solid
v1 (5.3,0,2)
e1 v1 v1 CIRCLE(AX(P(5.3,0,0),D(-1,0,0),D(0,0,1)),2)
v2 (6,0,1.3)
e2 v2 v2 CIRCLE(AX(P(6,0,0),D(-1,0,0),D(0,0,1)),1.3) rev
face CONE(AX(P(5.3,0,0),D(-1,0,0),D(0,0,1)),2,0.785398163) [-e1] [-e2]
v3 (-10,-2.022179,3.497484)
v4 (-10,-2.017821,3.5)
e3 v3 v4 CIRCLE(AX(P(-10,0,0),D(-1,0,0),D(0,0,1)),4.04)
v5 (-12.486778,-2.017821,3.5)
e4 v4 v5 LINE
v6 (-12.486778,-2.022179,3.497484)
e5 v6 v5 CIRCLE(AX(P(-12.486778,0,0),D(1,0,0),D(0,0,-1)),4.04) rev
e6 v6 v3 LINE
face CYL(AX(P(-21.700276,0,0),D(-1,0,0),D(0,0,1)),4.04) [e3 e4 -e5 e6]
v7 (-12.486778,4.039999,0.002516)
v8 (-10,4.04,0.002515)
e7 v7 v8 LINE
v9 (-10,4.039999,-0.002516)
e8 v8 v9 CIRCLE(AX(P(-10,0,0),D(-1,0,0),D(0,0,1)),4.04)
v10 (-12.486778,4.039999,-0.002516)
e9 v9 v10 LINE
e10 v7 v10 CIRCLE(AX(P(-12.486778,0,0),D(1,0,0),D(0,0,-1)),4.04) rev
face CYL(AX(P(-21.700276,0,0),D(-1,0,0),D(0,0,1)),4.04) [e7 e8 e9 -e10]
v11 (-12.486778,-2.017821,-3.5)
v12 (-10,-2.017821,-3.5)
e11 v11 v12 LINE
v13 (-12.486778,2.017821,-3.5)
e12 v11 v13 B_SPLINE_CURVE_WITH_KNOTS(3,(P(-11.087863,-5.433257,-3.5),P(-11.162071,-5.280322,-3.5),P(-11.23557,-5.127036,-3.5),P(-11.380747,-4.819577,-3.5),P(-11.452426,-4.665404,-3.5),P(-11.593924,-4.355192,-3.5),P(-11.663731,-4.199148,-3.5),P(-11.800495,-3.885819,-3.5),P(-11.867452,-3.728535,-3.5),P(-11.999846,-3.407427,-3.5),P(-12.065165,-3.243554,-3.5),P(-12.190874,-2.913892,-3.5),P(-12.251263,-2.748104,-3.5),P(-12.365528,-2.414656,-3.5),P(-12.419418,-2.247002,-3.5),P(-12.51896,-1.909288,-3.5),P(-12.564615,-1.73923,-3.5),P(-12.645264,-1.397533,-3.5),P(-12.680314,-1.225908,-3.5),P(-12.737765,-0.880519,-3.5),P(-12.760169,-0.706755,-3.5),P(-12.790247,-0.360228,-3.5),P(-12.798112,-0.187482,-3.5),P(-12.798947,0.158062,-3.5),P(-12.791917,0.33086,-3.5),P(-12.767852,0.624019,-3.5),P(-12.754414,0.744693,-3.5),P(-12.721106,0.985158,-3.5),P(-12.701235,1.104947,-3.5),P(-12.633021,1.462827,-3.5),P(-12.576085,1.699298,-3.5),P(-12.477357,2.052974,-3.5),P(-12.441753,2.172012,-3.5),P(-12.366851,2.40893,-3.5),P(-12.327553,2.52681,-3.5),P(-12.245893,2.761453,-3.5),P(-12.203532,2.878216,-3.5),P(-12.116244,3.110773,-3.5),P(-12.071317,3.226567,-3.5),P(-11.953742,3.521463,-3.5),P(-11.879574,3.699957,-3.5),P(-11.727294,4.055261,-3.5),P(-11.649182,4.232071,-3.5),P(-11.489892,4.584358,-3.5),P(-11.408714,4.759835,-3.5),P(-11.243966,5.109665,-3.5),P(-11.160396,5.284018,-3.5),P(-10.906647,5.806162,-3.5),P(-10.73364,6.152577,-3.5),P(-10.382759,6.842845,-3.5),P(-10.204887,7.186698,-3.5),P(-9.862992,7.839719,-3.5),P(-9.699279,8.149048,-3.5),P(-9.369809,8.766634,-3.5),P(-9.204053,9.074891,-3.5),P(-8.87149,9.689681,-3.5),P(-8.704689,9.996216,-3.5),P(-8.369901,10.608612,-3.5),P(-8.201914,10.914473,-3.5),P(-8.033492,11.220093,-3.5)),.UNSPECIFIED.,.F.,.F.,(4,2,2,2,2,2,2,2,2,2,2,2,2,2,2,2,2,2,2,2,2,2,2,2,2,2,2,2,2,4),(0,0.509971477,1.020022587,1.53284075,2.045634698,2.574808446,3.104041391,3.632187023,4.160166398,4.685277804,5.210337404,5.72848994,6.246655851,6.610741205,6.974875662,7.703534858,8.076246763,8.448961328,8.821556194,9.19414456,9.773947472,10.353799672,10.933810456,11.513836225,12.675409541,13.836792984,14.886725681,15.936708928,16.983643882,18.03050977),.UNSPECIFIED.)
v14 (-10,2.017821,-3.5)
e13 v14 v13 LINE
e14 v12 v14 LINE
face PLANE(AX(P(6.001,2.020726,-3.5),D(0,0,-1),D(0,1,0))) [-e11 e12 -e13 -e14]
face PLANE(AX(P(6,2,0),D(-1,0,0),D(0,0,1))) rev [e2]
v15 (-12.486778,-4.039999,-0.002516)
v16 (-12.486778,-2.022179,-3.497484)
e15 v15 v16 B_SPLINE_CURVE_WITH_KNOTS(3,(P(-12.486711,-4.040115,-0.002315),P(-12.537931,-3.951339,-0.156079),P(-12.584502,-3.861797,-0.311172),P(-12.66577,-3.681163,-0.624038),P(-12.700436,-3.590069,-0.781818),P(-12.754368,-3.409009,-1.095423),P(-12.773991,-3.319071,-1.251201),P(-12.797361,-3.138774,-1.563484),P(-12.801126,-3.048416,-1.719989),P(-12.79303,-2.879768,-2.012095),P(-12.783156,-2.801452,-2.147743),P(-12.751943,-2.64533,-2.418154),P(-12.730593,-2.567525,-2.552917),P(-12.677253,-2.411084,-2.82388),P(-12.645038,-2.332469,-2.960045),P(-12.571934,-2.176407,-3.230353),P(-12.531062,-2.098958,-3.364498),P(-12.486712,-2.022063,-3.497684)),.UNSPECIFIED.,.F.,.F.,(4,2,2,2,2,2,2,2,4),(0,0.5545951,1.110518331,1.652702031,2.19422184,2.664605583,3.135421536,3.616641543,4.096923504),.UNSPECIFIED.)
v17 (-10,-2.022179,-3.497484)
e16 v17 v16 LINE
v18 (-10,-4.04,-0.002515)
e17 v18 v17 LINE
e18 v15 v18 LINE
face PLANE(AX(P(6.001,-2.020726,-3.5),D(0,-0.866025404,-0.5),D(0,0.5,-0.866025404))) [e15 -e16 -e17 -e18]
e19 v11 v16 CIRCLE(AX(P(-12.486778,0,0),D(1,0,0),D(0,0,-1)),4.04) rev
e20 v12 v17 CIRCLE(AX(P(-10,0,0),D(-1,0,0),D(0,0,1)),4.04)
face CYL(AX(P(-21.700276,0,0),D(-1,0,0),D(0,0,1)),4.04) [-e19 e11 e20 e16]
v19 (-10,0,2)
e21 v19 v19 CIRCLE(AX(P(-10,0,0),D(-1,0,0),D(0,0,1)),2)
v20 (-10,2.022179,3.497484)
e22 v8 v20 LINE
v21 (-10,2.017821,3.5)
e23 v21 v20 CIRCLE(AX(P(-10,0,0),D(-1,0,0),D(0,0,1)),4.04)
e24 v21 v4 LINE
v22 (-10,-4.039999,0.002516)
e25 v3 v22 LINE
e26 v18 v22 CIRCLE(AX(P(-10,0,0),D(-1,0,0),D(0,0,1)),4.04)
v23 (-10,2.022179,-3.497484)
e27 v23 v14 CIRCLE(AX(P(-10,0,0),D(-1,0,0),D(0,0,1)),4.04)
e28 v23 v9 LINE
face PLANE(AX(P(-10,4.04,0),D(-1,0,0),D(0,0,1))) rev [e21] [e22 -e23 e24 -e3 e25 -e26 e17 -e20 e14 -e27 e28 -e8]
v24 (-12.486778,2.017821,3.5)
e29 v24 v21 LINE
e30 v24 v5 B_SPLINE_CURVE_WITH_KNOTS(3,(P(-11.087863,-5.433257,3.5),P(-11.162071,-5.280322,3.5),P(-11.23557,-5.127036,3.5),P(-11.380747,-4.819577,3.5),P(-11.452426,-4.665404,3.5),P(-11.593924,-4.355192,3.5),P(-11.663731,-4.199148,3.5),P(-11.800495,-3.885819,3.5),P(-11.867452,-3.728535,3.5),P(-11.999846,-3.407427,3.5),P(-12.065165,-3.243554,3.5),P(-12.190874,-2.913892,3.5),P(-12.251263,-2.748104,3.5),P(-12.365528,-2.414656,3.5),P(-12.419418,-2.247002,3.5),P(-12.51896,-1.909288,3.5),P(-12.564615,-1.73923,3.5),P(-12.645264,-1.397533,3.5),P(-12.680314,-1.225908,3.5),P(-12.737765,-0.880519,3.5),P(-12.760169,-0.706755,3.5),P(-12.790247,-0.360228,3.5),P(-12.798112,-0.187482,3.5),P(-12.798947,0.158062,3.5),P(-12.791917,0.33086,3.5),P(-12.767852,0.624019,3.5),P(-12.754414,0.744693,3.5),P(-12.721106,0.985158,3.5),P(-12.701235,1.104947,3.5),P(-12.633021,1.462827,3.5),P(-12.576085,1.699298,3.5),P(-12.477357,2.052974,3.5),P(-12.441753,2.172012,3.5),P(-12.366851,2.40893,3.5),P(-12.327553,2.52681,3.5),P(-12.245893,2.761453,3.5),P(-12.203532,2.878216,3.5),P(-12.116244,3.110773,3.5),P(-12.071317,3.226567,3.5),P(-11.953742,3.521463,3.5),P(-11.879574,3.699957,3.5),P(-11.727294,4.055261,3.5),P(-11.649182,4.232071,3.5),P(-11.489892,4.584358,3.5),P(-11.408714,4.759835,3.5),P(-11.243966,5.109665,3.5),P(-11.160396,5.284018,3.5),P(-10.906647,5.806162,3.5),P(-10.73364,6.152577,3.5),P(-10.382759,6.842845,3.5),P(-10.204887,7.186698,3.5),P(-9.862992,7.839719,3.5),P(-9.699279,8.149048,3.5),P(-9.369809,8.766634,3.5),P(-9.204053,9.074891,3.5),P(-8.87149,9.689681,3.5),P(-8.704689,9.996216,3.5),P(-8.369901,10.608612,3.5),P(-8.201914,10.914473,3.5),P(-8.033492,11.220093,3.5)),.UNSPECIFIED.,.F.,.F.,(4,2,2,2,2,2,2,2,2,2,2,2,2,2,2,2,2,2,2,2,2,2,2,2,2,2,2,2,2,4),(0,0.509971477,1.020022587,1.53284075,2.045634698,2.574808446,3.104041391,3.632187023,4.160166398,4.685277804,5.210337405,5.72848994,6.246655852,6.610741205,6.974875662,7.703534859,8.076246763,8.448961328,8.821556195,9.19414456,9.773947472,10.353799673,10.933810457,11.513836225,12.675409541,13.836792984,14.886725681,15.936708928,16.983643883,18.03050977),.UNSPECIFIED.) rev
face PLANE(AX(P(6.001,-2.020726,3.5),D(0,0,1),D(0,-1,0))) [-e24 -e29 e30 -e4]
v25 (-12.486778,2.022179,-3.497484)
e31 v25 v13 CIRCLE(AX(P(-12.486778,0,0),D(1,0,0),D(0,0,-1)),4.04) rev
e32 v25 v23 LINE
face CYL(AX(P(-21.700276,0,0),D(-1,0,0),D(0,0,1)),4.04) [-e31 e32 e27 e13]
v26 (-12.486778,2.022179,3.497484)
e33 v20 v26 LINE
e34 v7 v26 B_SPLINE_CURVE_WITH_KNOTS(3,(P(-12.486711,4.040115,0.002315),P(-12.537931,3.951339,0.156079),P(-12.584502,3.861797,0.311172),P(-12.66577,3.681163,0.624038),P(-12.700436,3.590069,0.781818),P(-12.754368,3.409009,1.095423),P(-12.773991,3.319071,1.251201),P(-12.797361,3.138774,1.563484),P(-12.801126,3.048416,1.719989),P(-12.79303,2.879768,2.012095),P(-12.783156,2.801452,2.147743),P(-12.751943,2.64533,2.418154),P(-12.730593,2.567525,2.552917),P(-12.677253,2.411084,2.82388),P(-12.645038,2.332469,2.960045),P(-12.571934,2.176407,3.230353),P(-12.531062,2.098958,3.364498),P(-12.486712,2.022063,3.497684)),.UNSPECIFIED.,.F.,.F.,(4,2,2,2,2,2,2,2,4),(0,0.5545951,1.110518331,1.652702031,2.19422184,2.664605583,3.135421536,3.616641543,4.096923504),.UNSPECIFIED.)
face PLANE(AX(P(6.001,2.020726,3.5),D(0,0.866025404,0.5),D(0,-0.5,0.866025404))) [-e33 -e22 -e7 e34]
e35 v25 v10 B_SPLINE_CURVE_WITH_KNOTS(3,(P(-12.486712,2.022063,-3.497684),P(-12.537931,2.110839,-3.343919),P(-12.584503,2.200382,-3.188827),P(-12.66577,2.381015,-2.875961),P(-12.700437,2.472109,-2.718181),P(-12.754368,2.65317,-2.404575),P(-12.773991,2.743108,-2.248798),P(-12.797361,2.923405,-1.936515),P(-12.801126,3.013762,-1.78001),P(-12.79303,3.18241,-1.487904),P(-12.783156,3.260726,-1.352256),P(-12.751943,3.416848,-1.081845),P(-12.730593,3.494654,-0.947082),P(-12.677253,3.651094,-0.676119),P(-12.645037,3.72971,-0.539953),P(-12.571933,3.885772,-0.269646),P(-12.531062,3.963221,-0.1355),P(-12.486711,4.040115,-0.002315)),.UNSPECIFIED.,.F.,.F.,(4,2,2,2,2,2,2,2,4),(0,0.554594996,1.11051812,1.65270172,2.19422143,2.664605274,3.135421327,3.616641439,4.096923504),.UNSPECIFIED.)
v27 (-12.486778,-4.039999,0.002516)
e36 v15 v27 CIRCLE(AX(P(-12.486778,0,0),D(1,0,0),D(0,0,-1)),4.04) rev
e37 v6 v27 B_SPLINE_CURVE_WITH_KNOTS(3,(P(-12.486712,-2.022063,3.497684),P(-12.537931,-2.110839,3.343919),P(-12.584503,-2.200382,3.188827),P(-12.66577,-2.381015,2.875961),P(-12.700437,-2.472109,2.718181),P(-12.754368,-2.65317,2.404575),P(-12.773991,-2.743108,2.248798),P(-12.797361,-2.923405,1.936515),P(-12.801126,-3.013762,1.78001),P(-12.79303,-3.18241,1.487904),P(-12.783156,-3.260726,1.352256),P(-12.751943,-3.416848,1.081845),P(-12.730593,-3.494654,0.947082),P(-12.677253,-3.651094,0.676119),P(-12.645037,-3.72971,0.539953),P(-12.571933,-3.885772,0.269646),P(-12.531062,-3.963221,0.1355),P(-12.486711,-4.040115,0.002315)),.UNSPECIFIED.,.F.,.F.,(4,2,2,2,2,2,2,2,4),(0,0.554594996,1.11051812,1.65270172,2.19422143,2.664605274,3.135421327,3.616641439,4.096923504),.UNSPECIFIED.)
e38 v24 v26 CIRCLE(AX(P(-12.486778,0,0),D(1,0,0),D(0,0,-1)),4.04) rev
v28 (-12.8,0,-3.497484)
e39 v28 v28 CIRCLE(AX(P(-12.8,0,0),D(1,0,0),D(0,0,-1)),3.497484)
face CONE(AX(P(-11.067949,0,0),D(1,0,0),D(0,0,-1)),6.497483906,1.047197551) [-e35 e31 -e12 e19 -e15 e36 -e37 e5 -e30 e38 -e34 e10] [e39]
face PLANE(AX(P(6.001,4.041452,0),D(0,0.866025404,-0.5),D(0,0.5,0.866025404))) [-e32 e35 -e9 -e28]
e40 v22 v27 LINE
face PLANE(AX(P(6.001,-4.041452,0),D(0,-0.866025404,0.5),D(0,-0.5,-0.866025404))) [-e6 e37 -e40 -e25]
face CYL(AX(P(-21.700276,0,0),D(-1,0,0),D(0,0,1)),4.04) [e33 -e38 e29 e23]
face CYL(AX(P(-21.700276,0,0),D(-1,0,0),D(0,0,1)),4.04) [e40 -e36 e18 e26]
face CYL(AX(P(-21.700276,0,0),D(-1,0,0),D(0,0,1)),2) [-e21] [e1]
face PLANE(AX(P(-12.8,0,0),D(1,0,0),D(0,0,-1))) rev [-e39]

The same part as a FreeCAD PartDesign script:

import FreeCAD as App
import Part
import Sketcher

V = App.Vector
Q = App.Units.Quantity


def edges_at(feature, points):
    """Names of the edges that pass closest to the given points."""
    edges = feature.Shape.Edges
    near = lambda p: min(range(len(edges)), key=lambda i: edges[i].distToShape(Part.Vertex(*p))[0])
    return sorted({f"Edge{near(p) + 1}" for p in points})

doc = App.newDocument("Part")
body = doc.addObject("PartDesign::Body", "Body")

# Sketch on XY plane
sketch1 = body.newObject("Sketcher::SketchObject", "Sketch")
sketch1.AttachmentSupport = (doc.getObject("XY_Plane"), [""])
sketch1.MapMode = "FlatFace"
sketch1.addGeometry([
    Part.LineSegment(V(-12.8, 4.04, 0), V(-12.8, 0, 0)),  # 0
    Part.LineSegment(V(-12.8, 0, 0), V(6, 0, 0)),  # 1
    Part.LineSegment(V(6, 0, 0), V(6, 2, 0)),  # 2
    Part.LineSegment(V(6, 2, 0), V(-10, 2, 0)),  # 3
    Part.LineSegment(V(-10, 2, 0), V(-10, 4.04, 0)),  # 4
    Part.LineSegment(V(-10, 4.04, 0), V(-12.8, 4.04, 0)),  # 5
], False)
sketch1.addConstraint([
    Sketcher.Constraint("Coincident", 0, 2, 1, 1),
    Sketcher.Constraint("Coincident", 1, 2, 2, 1),
    Sketcher.Constraint("Coincident", 2, 2, 3, 1),
    Sketcher.Constraint("Coincident", 3, 2, 4, 1),
    Sketcher.Constraint("Coincident", 4, 2, 5, 1),
    Sketcher.Constraint("Coincident", 5, 2, 0, 1),
    Sketcher.Constraint("Vertical", 0),
    Sketcher.Constraint("Horizontal", 1),
    Sketcher.Constraint("Vertical", 2),
    Sketcher.Constraint("Horizontal", 3),
    Sketcher.Constraint("Vertical", 4),
    Sketcher.Constraint("Horizontal", 5),
    Sketcher.Constraint("PointOnObject", 0, 2, -1),
    Sketcher.Constraint("DistanceX", 3, 2, 3, 1, Q("16 mm")),
    Sketcher.Constraint("DistanceY", 2, 1, 2, 2, Q("2 mm")),
    Sketcher.Constraint("DistanceX", 1, 1, 1, 2, Q("18.8 mm")),
    Sketcher.Constraint("DistanceX", -1, 1, 1, 2, Q("6 mm")),
    Sketcher.Constraint("DistanceY", 0, 2, 0, 1, Q("4.04 mm")),
])
revolution = body.newObject("PartDesign::Revolution", "Revolution")
revolution.Profile = sketch1
revolution.ReferenceAxis = (sketch1, ["H_Axis"])
revolution.Angle = 360

# Sketch on YZ plane
sketch2 = body.newObject("Sketcher::SketchObject", "Sketch001")
sketch2.AttachmentSupport = (doc.getObject("YZ_Plane"), [""])
sketch2.MapMode = "FlatFace"
sketch2.AttachmentOffset = App.Placement(V(0, 0, -12.8), App.Rotation())
sketch2.addGeometry([
    Part.LineSegment(V(7.24, -7.24, 0), V(-7.24, -7.24, 0)),  # 0
    Part.LineSegment(V(-7.24, -7.24, 0), V(-7.24, 7.24, 0)),  # 1
    Part.LineSegment(V(-7.24, 7.24, 0), V(7.24, 7.24, 0)),  # 2
    Part.LineSegment(V(7.24, 7.24, 0), V(7.24, -7.24, 0)),  # 3
    Part.LineSegment(V(2.020726, -3.5, 0), V(4.041452, 0, 0)),  # 4
    Part.LineSegment(V(4.041452, 0, 0), V(2.020726, 3.5, 0)),  # 5
    Part.LineSegment(V(2.020726, 3.5, 0), V(-2.020726, 3.5, 0)),  # 6
    Part.LineSegment(V(-2.020726, 3.5, 0), V(-4.041452, 0, 0)),  # 7
    Part.LineSegment(V(-4.041452, 0, 0), V(-2.020726, -3.5, 0)),  # 8
    Part.LineSegment(V(-2.020726, -3.5, 0), V(2.020726, -3.5, 0)),  # 9
], False)
sketch2.addConstraint([
    Sketcher.Constraint("Coincident", 0, 2, 1, 1),
    Sketcher.Constraint("Coincident", 1, 2, 2, 1),
    Sketcher.Constraint("Coincident", 2, 2, 3, 1),
    Sketcher.Constraint("Coincident", 3, 2, 0, 1),
    Sketcher.Constraint("Coincident", 4, 2, 5, 1),
    Sketcher.Constraint("Coincident", 5, 2, 6, 1),
    Sketcher.Constraint("Coincident", 6, 2, 7, 1),
    Sketcher.Constraint("Coincident", 7, 2, 8, 1),
    Sketcher.Constraint("Coincident", 8, 2, 9, 1),
    Sketcher.Constraint("Coincident", 9, 2, 4, 1),
    Sketcher.Constraint("Horizontal", 0),
    Sketcher.Constraint("Vertical", 1),
    Sketcher.Constraint("Horizontal", 2),
    Sketcher.Constraint("Vertical", 3),
    Sketcher.Constraint("Horizontal", 6),
    Sketcher.Constraint("Horizontal", 9),
    Sketcher.Constraint("Symmetric", 0, 2, 2, 2, -1, 1),
    Sketcher.Constraint("Symmetric", 4, 2, 7, 2, -1, 1),
    Sketcher.Constraint("Symmetric", 5, 2, 8, 2, -1, 1),
    Sketcher.Constraint("PointOnObject", 4, 2, -1),
    Sketcher.Constraint("Parallel", 4, 7),
    Sketcher.Constraint("Vertical", 6, 2, 8, 2),
    Sketcher.Constraint("Equal", 2, 1),
    Sketcher.Constraint("Angle", 4, Q("60 deg")),
    Sketcher.Constraint("DistanceY", 8, 2, 6, 2, Q("7 mm")),
    Sketcher.Constraint("DistanceX", 0, 2, 0, 1, Q("14.48 mm")),
    Sketcher.Constraint("DistanceX", 6, 2, 6, 1, Q("4.041452 mm")),
])
pocket1 = body.newObject("PartDesign::Pocket", "Pocket")
pocket1.Profile = sketch2
pocket1.Length = 18.8
pocket1.Reversed = True
doc.recompute()

chamfer = body.newObject("PartDesign::Chamfer", "Chamfer")
chamfer.Base = (pocket1, edges_at(pocket1, [(6, -2, 0)]))
chamfer.Size = 0.7

# Sketch on an angled plane
sketch3 = body.newObject("Sketcher::SketchObject", "Sketch002")
sketch3.Placement = App.Placement(V(0, 0, 0), App.Rotation(V(-1, 0, 0), V(0, 0.866025404, 0.5), V(0, 0.5, -0.866025404), "ZXY"))
sketch3.addGeometry([
    Part.LineSegment(V(12.8, 3.497484, 0), V(12.8, 6.497484, 0)),
    Part.LineSegment(V(12.8, 6.497484, 0), V(11.067949, 6.497484, 0)),
    Part.LineSegment(V(11.067949, 6.497484, 0), V(12.8, 3.497484, 0)),
], False)
sketch3.addConstraint([
    Sketcher.Constraint("Coincident", 0, 2, 1, 1),
    Sketcher.Constraint("Coincident", 1, 2, 2, 1),
    Sketcher.Constraint("Coincident", 2, 2, 0, 1),
    Sketcher.Constraint("Vertical", 0),
    Sketcher.Constraint("Horizontal", 1),
    Sketcher.Constraint("DistanceY", 0, 1, 0, 2, Q("3 mm")),
    Sketcher.Constraint("Angle", 2, Q("-60 deg")),
    Sketcher.Constraint("DistanceX", -1, 1, 0, 2, Q("12.8 mm")),
    Sketcher.Constraint("DistanceY", -1, 1, 0, 2, Q("6.497484 mm")),
])
groove = body.newObject("PartDesign::Groove", "Groove")
groove.Profile = sketch3
groove.ReferenceAxis = (sketch3, ["H_Axis"])
groove.Angle = 360

doc.recompute()
